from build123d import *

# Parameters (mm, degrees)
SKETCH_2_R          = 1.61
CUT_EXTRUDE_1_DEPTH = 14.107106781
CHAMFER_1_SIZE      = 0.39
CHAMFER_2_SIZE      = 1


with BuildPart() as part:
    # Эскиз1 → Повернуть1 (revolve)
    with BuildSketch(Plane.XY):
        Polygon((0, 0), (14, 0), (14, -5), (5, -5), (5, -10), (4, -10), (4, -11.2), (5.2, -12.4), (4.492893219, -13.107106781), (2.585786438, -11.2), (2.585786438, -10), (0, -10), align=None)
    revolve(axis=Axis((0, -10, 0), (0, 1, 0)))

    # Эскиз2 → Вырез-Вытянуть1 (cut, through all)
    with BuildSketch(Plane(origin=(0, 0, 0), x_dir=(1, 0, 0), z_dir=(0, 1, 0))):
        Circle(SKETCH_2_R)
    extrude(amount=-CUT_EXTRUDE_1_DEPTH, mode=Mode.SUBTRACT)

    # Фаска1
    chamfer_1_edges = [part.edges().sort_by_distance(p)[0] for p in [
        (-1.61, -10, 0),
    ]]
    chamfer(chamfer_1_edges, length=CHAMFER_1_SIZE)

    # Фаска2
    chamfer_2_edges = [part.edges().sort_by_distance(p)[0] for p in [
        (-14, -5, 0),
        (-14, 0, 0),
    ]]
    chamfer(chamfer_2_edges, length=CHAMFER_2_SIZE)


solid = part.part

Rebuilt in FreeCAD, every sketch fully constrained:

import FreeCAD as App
import Part
import Sketcher
from FreeCAD import Vector
Q = App.Units.Quantity


def edges_at(feature, points):
    """Names of the edges that pass closest to the given points."""
    edges = feature.Shape.Edges
    near = lambda p: min(range(len(edges)), key=lambda i: edges[i].distToShape(Part.Vertex(*p))[0])
    return sorted({f"Edge{near(p) + 1}" for p in points})


def add_polygon(sketch, points):
    """Adds a closed chain of lines whose ends are joined by coincident constraints."""
    first, n = sketch.GeometryCount, len(points)
    for a, b in zip(points, points[1:] + points[:1]):
        sketch.addGeometry(Part.LineSegment(App.Vector(*a, 0), App.Vector(*b, 0)), False)
    for i in range(n):
        sketch.addConstraint(Sketcher.Constraint("Coincident", first + i, 2, first + (i + 1) % n, 1))

doc = App.newDocument("Part")
body = doc.addObject("PartDesign::Body", "Body")

sketch1 = doc.addObject("Sketcher::SketchObject", "Sketch")
body.addObject(sketch1)
sketch1.AttachmentSupport = (doc.XY_Plane, [""])
sketch1.MapMode = "FlatFace"
add_polygon(sketch1, [(14, 0), (0, 0), (0, -10), (2.6, -10), (2.6, -11.2), (4.5, -13.1), (5.2, -12.4), (4, -11.2), (4, -10), (5, -10), (5, -5), (14, -5)])
sketch1.addConstraint([
    Sketcher.Constraint("Horizontal", 0),
    Sketcher.Constraint("Vertical", 1),
    Sketcher.Constraint("Horizontal", 2),
    Sketcher.Constraint("Vertical", 3),
    Sketcher.Constraint("Vertical", 7),
    Sketcher.Constraint("Horizontal", 8),
    Sketcher.Constraint("Vertical", 9),
    Sketcher.Constraint("Horizontal", 10),
    Sketcher.Constraint("Vertical", 11),
    Sketcher.Constraint("Coincident", 0, 2, -1, 1),
    Sketcher.Constraint("Perpendicular", 4, 5),
    Sketcher.Constraint("Perpendicular", 5, 6),
    Sketcher.Constraint("Horizontal", 3, 2, 6, 2),
    Sketcher.Constraint("Horizontal", 2, 2, 7, 2),
    Sketcher.Constraint("Equal", 9, 11),
    Sketcher.Constraint("DistanceX", 0, 2, 0, 1, Q("14 mm")),
    Sketcher.Constraint("DistanceX", 8, 1, 8, 2, Q("1 mm")),
    Sketcher.Constraint("DistanceX", 10, 1, 10, 2, Q("9 mm")),
    Sketcher.Constraint("DistanceY", 1, 2, 1, 1, Q("10 mm")),
    Sketcher.Constraint("Angle", 4, Q("-45 deg")),
    Sketcher.Constraint("Distance", 5, Q("1 mm")),
    Sketcher.Constraint("DistanceY", 3, 2, 3, 1, Q("1.2 mm")),
    Sketcher.Constraint("DistanceX", -1, 1, 5, 2, Q("5.2 mm")),
])
revolution = doc.addObject("PartDesign::Revolution", "Revolution")
body.addObject(revolution)
revolution.Profile = sketch1
revolution.ReferenceAxis = (sketch1, ["V_Axis"])
revolution.Angle = 360

sketch2 = doc.addObject("Sketcher::SketchObject", "Sketch001")
body.addObject(sketch2)
sketch2.AttachmentSupport = (doc.XZ_Plane, [""])
sketch2.MapMode = "FlatFace"
sketch2.addGeometry(Part.Circle(Vector(0, 0, 0), Vector(0, 0, 1), 1.6), False)
sketch2.addConstraint([
    Sketcher.Constraint("Coincident", 0, 3, -1, 1),
    Sketcher.Constraint("Diameter", 0, Q("3.22 mm")),
])
pocket1 = doc.addObject("PartDesign::Pocket", "Pocket")
body.addObject(pocket1)
pocket1.Profile = sketch2
pocket1.Type = "ThroughAll"
pocket1.Reversed = True
doc.recompute()

chamfer = doc.addObject("PartDesign::Chamfer", "Chamfer")
body.addObject(chamfer)
chamfer.Base = (pocket1, edges_at(pocket1, [(-1.61, -10, 0)]))
chamfer.Size = 0.39
doc.recompute()

chamfer2 = doc.addObject("PartDesign::Chamfer", "Chamfer001")
body.addObject(chamfer2)
chamfer2.Base = (chamfer, edges_at(chamfer, [(-14, -5, 0), (-14, 0, 0)]))
chamfer2.Size = 1

doc.recompute()
